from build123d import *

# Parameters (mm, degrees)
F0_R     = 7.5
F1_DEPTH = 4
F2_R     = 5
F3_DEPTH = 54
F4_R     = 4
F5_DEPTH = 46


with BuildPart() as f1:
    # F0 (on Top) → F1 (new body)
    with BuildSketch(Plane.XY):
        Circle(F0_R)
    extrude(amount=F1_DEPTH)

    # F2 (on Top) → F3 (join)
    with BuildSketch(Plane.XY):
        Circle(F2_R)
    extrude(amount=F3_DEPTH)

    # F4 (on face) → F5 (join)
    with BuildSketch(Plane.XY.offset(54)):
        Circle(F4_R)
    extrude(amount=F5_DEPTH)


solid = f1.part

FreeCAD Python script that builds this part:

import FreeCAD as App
import Part
import Sketcher

V = App.Vector
Q = App.Units.Quantity

doc = App.newDocument("Part")
body = doc.addObject("PartDesign::Body", "Body")

# Sketch on XY plane
sketch1 = body.newObject("Sketcher::SketchObject", "Sketch")
sketch1.AttachmentSupport = (doc.getObject("XY_Plane"), [""])
sketch1.MapMode = "FlatFace"
sketch1.addGeometry(Part.Circle(V(0, 0, 0), V(0, 0, 1), 8), False)
sketch1.addConstraint(Sketcher.Constraint("Coincident", 0, 3, -1, 1))
sketch1.addConstraint(Sketcher.Constraint("Diameter", 0, Q("15 mm")))
pad1 = body.newObject("PartDesign::Pad", "Pad")
pad1.Profile = sketch1
pad1.Length = 4

# Sketch on XY plane
sketch2 = body.newObject("Sketcher::SketchObject", "Sketch001")
sketch2.AttachmentSupport = (doc.getObject("XY_Plane"), [""])
sketch2.MapMode = "FlatFace"
sketch2.addGeometry(Part.Circle(V(0, 0, 0), V(0, 0, 1), 5), False)
sketch2.addConstraint(Sketcher.Constraint("Coincident", 0, 3, -1, 1))
sketch2.addConstraint(Sketcher.Constraint("Diameter", 0, Q("10 mm")))
pad2 = body.newObject("PartDesign::Pad", "Pad001")
pad2.Profile = sketch2
pad2.Length = 54

# Sketch on XY plane
sketch3 = body.newObject("Sketcher::SketchObject", "Sketch002")
sketch3.AttachmentSupport = (doc.getObject("XY_Plane"), [""])
sketch3.MapMode = "FlatFace"
sketch3.AttachmentOffset = App.Placement(V(0, 0, 54), App.Rotation())
sketch3.addGeometry(Part.Circle(V(0, 0, 0), V(0, 0, 1), 4), False)
sketch3.addConstraint(Sketcher.Constraint("Coincident", 0, 3, -1, 1))
sketch3.addConstraint(Sketcher.Constraint("Diameter", 0, Q("8 mm")))
pad3 = body.newObject("PartDesign::Pad", "Pad002")
pad3.Profile = sketch3
pad3.Length = 46

doc.recompute()
